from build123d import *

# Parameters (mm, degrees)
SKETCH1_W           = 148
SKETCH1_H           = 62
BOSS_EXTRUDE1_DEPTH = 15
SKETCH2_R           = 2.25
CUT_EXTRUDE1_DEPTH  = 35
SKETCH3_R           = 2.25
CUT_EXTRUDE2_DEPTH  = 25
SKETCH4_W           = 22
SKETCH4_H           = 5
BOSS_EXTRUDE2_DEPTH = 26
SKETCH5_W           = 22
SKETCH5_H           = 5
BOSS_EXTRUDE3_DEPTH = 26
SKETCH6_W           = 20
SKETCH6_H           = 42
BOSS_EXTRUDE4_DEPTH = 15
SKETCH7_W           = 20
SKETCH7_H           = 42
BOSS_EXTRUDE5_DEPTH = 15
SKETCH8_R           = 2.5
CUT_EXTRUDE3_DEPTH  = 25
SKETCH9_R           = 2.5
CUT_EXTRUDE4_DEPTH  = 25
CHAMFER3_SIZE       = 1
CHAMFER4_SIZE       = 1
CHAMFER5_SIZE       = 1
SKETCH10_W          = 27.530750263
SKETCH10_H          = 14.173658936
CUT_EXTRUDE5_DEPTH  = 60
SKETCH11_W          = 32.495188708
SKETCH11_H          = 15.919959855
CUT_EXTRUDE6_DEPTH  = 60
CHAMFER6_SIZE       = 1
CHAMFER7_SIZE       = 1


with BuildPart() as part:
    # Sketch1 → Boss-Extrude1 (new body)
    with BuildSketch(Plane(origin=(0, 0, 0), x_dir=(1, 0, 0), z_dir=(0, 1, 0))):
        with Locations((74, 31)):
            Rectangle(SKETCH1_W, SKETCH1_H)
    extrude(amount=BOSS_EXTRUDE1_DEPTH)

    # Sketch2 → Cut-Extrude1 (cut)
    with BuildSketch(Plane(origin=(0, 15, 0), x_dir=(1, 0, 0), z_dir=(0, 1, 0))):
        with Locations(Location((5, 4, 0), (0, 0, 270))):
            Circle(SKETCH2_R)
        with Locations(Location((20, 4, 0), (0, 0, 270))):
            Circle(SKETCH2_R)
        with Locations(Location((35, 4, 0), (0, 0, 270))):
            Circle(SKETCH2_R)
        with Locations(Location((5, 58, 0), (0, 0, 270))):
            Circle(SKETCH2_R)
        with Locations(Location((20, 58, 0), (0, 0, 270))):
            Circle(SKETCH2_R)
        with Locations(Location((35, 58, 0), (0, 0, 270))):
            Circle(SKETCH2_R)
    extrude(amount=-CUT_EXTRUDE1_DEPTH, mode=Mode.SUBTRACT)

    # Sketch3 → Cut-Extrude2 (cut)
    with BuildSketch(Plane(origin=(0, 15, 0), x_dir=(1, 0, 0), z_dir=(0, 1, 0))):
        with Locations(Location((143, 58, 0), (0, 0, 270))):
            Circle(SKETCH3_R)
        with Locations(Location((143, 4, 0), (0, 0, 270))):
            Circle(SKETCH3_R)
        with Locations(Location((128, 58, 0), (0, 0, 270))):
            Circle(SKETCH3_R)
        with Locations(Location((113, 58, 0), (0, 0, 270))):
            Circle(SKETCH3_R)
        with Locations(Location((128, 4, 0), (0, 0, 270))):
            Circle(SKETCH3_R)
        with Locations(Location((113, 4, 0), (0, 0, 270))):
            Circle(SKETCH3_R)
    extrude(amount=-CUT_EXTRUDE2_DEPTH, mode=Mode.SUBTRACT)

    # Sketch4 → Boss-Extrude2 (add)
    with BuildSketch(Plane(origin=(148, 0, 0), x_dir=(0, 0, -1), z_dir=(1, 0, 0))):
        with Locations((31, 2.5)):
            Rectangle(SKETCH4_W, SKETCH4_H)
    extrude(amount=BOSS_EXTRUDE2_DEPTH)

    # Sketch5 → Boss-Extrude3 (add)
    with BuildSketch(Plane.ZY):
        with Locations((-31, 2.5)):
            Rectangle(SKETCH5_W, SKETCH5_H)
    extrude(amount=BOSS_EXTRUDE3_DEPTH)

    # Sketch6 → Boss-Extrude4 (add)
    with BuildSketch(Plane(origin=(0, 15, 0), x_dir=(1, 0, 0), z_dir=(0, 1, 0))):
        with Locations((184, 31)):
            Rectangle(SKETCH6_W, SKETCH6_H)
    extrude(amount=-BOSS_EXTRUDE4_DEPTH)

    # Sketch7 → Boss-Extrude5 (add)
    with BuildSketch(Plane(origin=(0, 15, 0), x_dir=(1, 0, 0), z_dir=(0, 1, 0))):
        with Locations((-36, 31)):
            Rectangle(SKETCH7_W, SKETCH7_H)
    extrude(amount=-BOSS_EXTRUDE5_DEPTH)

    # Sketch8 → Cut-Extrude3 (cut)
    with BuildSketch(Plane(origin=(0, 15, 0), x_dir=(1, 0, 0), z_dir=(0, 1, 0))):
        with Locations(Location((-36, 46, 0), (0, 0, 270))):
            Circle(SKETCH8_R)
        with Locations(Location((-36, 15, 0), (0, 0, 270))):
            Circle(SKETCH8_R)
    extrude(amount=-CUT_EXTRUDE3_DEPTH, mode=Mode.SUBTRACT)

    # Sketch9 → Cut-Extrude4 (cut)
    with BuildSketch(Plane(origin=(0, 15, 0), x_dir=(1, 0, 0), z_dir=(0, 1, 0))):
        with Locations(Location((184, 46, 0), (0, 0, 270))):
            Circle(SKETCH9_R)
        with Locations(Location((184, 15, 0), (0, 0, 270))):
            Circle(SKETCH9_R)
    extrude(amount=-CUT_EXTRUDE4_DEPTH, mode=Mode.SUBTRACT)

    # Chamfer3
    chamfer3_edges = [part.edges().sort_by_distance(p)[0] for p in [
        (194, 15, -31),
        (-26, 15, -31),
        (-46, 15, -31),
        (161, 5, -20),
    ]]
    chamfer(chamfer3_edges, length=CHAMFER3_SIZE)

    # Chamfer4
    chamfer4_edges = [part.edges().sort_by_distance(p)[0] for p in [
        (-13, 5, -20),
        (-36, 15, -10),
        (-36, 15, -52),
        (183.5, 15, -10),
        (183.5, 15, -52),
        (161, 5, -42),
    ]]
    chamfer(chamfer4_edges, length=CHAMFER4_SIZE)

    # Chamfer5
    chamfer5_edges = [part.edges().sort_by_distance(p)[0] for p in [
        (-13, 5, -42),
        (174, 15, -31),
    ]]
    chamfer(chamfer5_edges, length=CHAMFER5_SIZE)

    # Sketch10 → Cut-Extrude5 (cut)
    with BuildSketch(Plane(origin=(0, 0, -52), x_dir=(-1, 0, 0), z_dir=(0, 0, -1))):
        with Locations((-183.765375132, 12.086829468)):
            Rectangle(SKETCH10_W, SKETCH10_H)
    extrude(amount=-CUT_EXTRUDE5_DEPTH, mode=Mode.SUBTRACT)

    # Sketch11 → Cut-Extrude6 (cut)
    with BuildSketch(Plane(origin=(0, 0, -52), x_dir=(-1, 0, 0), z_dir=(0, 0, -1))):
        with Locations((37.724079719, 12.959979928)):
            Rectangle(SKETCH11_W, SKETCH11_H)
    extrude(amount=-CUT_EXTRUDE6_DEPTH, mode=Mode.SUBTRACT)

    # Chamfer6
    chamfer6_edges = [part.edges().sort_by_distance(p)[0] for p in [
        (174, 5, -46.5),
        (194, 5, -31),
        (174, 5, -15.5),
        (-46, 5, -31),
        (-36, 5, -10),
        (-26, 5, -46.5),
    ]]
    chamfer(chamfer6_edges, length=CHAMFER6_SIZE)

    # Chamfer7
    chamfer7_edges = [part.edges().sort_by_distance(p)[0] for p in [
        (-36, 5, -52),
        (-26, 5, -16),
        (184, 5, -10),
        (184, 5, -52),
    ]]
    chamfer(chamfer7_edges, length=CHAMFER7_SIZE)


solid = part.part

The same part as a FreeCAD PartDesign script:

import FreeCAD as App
import Part
import Sketcher

V = App.Vector


def edges_at(feature, points):
    """Names of the edges that pass closest to the given points."""
    edges = feature.Shape.Edges
    near = lambda p: min(range(len(edges)), key=lambda i: edges[i].distToShape(Part.Vertex(*p))[0])
    return sorted({f"Edge{near(p) + 1}" for p in points})


def add_polygon(sketch, points):
    """Adds a closed chain of lines whose ends are joined by coincident constraints."""
    first, n = sketch.GeometryCount, len(points)
    for a, b in zip(points, points[1:] + points[:1]):
        sketch.addGeometry(Part.LineSegment(App.Vector(*a, 0), App.Vector(*b, 0)), False)
    for i in range(n):
        sketch.addConstraint(Sketcher.Constraint("Coincident", first + i, 2, first + (i + 1) % n, 1))

doc = App.newDocument("Part")
params = doc.addObject("Spreadsheet::Sheet", "Params")
for row, (alias, value) in enumerate([
    ("sketch1_width", "148 mm"),
    ("sketch1_height", "62 mm"),
    ("pad1_length", "15 mm"),
    ("sketch2_diameter", "4.5 mm"),
    ("pocket1_length", "35 mm"),
    ("sketch3_diameter", "4.5 mm"),
    ("pocket2_length", "25 mm"),
    ("sketch4_width", "5 mm"),
    ("sketch4_height", "22 mm"),
    ("pad2_length", "26 mm"),
    ("sketch5_width", "5 mm"),
    ("sketch5_height", "22 mm"),
    ("pad3_length", "26 mm"),
    ("sketch6_width", "20 mm"),
    ("sketch6_height", "42 mm"),
    ("pad4_length", "15 mm"),
    ("sketch7_width", "20 mm"),
    ("sketch7_height", "42 mm"),
    ("pad5_length", "15 mm"),
    ("sketch8_diameter", "5 mm"),
    ("pocket3_length", "25 mm"),
    ("sketch9_diameter", "5 mm"),
    ("pocket4_length", "25 mm"),
    ("chamfer_size", "1 mm"),
    ("chamfer2_size", "1 mm"),
    ("chamfer3_size", "1 mm"),
    ("pocket5_length", "60 mm"),
    ("pocket6_length", "60 mm"),
    ("chamfer4_size", "1 mm"),
    ("chamfer5_size", "1 mm"),
], start=1):
    params.set(f"A{row}", alias)
    params.set(f"B{row}", "=" + value)
    params.setAlias(f"B{row}", alias)

body = doc.addObject("PartDesign::Body", "Body")

# Sketch on XZ plane
sketch1 = doc.addObject("Sketcher::SketchObject", "Sketch")
body.addObject(sketch1)
sketch1.AttachmentSupport = (doc.XZ_Plane, [""])
sketch1.MapMode = "FlatFace"
add_polygon(sketch1, [(0, -62), (0, 0), (148, 0), (148, -62)])  # lines 0-3
sketch1.addConstraint([
    Sketcher.Constraint("Vertical", 0),
    Sketcher.Constraint("Horizontal", 1),
    Sketcher.Constraint("Vertical", 2),
    Sketcher.Constraint("Horizontal", 3),
    Sketcher.Constraint("Coincident", 0, 2, -1, 1),
    Sketcher.Constraint("DistanceX", 1, 1, 1, 2, 148.0),
    Sketcher.Constraint("DistanceY", 0, 1, 0, 2, 62.0),
])
sketch1.setExpression("Constraints[9]", "Params.sketch1_width")
sketch1.setExpression("Constraints[10]", "Params.sketch1_height")
pad1 = doc.addObject("PartDesign::Pad", "Pad")
body.addObject(pad1)
pad1.Profile = sketch1
pad1.setExpression("Length", "Params.pad1_length")
pad1.Reversed = True

# Sketch on XZ plane
sketch2 = doc.addObject("Sketcher::SketchObject", "Sketch001")
body.addObject(sketch2)
sketch2.AttachmentSupport = (doc.XZ_Plane, [""])
sketch2.MapMode = "FlatFace"
sketch2.AttachmentOffset = App.Placement(V(0, 0, -15), App.Rotation())
sketch2.addGeometry([
    Part.Circle(V(5, -4, 0), V(0, 0, 1), 2.2),  # 0
    Part.Circle(V(20, -4, 0), V(0, 0, 1), 2.2),  # 1
    Part.Circle(V(35, -4, 0), V(0, 0, 1), 2.2),  # 2
    Part.Circle(V(5, -58, 0), V(0, 0, 1), 2.2),  # 3
    Part.Circle(V(20, -58, 0), V(0, 0, 1), 2.2),  # 4
    Part.Circle(V(35, -58, 0), V(0, 0, 1), 2.2),  # 5
], False)
sketch2.addConstraint([
    Sketcher.Constraint("Equal", 0, 1),
    Sketcher.Constraint("Equal", 1, 2),
    Sketcher.Constraint("Equal", 2, 3),
    Sketcher.Constraint("Equal", 3, 4),
    Sketcher.Constraint("Equal", 4, 5),
    Sketcher.Constraint("Horizontal", 0, 3, 1, 3),
    Sketcher.Constraint("Horizontal", 1, 3, 2, 3),
    Sketcher.Constraint("Horizontal", 3, 3, 4, 3),
    Sketcher.Constraint("Horizontal", 4, 3, 5, 3),
    Sketcher.Constraint("Vertical", 0, 3, 3, 3),
    Sketcher.Constraint("Vertical", 1, 3, 4, 3),
    Sketcher.Constraint("Vertical", 2, 3, 5, 3),
    Sketcher.Constraint("Diameter", 0, 4.5),
    Sketcher.Constraint("DistanceX", -1, 1, 0, 3, 5.0),
    Sketcher.Constraint("DistanceY", 0, 3, -1, 1, 4.0),
    Sketcher.Constraint("DistanceX", -1, 1, 1, 3, 20.0),
    Sketcher.Constraint("DistanceX", -1, 1, 2, 3, 35.0),
    Sketcher.Constraint("DistanceY", 3, 3, -1, 1, 58.0),
])
sketch2.setExpression("Constraints[12]", "Params.sketch2_diameter")
pocket1 = doc.addObject("PartDesign::Pocket", "Pocket")
body.addObject(pocket1)
pocket1.Profile = sketch2
pocket1.setExpression("Length", "Params.pocket1_length")
pocket1.Reversed = True

# Sketch on XZ plane
sketch3 = doc.addObject("Sketcher::SketchObject", "Sketch002")
body.addObject(sketch3)
sketch3.AttachmentSupport = (doc.XZ_Plane, [""])
sketch3.MapMode = "FlatFace"
sketch3.AttachmentOffset = App.Placement(V(0, 0, -15), App.Rotation())
sketch3.addGeometry([
    Part.Circle(V(143, -58, 0), V(0, 0, 1), 2.2),  # 0
    Part.Circle(V(143, -4, 0), V(0, 0, 1), 2.2),  # 1
    Part.Circle(V(128, -58, 0), V(0, 0, 1), 2.2),  # 2
    Part.Circle(V(113, -58, 0), V(0, 0, 1), 2.2),  # 3
    Part.Circle(V(128, -4, 0), V(0, 0, 1), 2.2),  # 4
    Part.Circle(V(113, -4, 0), V(0, 0, 1), 2.2),  # 5
], False)
sketch3.addConstraint([
    Sketcher.Constraint("Equal", 0, 1),
    Sketcher.Constraint("Equal", 1, 2),
    Sketcher.Constraint("Equal", 2, 3),
    Sketcher.Constraint("Equal", 3, 4),
    Sketcher.Constraint("Equal", 4, 5),
    Sketcher.Constraint("Horizontal", 0, 3, 2, 3),
    Sketcher.Constraint("Horizontal", 2, 3, 3, 3),
    Sketcher.Constraint("Horizontal", 1, 3, 4, 3),
    Sketcher.Constraint("Horizontal", 4, 3, 5, 3),
    Sketcher.Constraint("Vertical", 0, 3, 1, 3),
    Sketcher.Constraint("Vertical", 2, 3, 4, 3),
    Sketcher.Constraint("Vertical", 3, 3, 5, 3),
    Sketcher.Constraint("Diameter", 0, 4.5),
    Sketcher.Constraint("DistanceX", -1, 1, 0, 3, 143.0),
    Sketcher.Constraint("DistanceY", 0, 3, -1, 1, 58.0),
    Sketcher.Constraint("DistanceY", 1, 3, -1, 1, 4.0),
    Sketcher.Constraint("DistanceX", -1, 1, 2, 3, 128.0),
    Sketcher.Constraint("DistanceX", -1, 1, 3, 3, 113.0),
])
sketch3.setExpression("Constraints[12]", "Params.sketch3_diameter")
pocket2 = doc.addObject("PartDesign::Pocket", "Pocket001")
body.addObject(pocket2)
pocket2.Profile = sketch3
pocket2.setExpression("Length", "Params.pocket2_length")
pocket2.Reversed = True

# Sketch on YZ plane
sketch4 = doc.addObject("Sketcher::SketchObject", "Sketch003")
body.addObject(sketch4)
sketch4.AttachmentSupport = (doc.YZ_Plane, [""])
sketch4.MapMode = "FlatFace"
sketch4.AttachmentOffset = App.Placement(V(0, 0, 148), App.Rotation())
add_polygon(sketch4, [(5, -20), (0, -20), (0, -42), (5, -42)])  # lines 0-3
sketch4.addConstraint([
    Sketcher.Constraint("Horizontal", 0),
    Sketcher.Constraint("Vertical", 1),
    Sketcher.Constraint("Horizontal", 2),
    Sketcher.Constraint("Vertical", 3),
    Sketcher.Constraint("PointOnObject", 0, 2, -2),
    Sketcher.Constraint("DistanceX", 0, 2, 0, 1, 5.0),
    Sketcher.Constraint("DistanceY", 1, 2, 1, 1, 22.0),
    Sketcher.Constraint("DistanceY", 0, 2, -1, 1, 20.0),
])
sketch4.setExpression("Constraints[9]", "Params.sketch4_width")
sketch4.setExpression("Constraints[10]", "Params.sketch4_height")
pad2 = doc.addObject("PartDesign::Pad", "Pad001")
body.addObject(pad2)
pad2.Profile = sketch4
pad2.setExpression("Length", "Params.pad2_length")

# Sketch on YZ plane
sketch5 = doc.addObject("Sketcher::SketchObject", "Sketch004")
body.addObject(sketch5)
sketch5.AttachmentSupport = (doc.YZ_Plane, [""])
sketch5.MapMode = "FlatFace"
add_polygon(sketch5, [(5, -42), (0, -42), (0, -20), (5, -20)])  # lines 0-3
sketch5.addConstraint([
    Sketcher.Constraint("Horizontal", 0),
    Sketcher.Constraint("Vertical", 1),
    Sketcher.Constraint("Horizontal", 2),
    Sketcher.Constraint("Vertical", 3),
    Sketcher.Constraint("PointOnObject", 0, 2, -2),
    Sketcher.Constraint("DistanceX", 0, 2, 0, 1, 5.0),
    Sketcher.Constraint("DistanceY", 1, 1, 1, 2, 22.0),
    Sketcher.Constraint("DistanceY", 0, 2, -1, 1, 42.0),
])
sketch5.setExpression("Constraints[9]", "Params.sketch5_width")
sketch5.setExpression("Constraints[10]", "Params.sketch5_height")
pad3 = doc.addObject("PartDesign::Pad", "Pad002")
body.addObject(pad3)
pad3.Profile = sketch5
pad3.setExpression("Length", "Params.pad3_length")
pad3.Reversed = True

# Sketch on XZ plane
sketch6 = doc.addObject("Sketcher::SketchObject", "Sketch005")
body.addObject(sketch6)
sketch6.AttachmentSupport = (doc.XZ_Plane, [""])
sketch6.MapMode = "FlatFace"
sketch6.AttachmentOffset = App.Placement(V(0, 0, -15), App.Rotation())
add_polygon(sketch6, [(174, -52), (174, -10), (194, -10), (194, -52)])  # lines 0-3
sketch6.addConstraint([
    Sketcher.Constraint("Vertical", 0),
    Sketcher.Constraint("Horizontal", 1),
    Sketcher.Constraint("Vertical", 2),
    Sketcher.Constraint("Horizontal", 3),
    Sketcher.Constraint("DistanceX", 1, 1, 1, 2, 20.0),
    Sketcher.Constraint("DistanceY", 0, 1, 0, 2, 42.0),
    Sketcher.Constraint("DistanceX", -1, 1, 0, 2, 174.0),
    Sketcher.Constraint("DistanceY", 0, 2, -1, 1, 10.0),
])
sketch6.setExpression("Constraints[8]", "Params.sketch6_width")
sketch6.setExpression("Constraints[9]", "Params.sketch6_height")
pad4 = doc.addObject("PartDesign::Pad", "Pad003")
body.addObject(pad4)
pad4.Profile = sketch6
pad4.setExpression("Length", "Params.pad4_length")

# Sketch on XZ plane
sketch7 = doc.addObject("Sketcher::SketchObject", "Sketch006")
body.addObject(sketch7)
sketch7.AttachmentSupport = (doc.XZ_Plane, [""])
sketch7.MapMode = "FlatFace"
sketch7.AttachmentOffset = App.Placement(V(0, 0, -15), App.Rotation())
add_polygon(sketch7, [(-46, -52), (-46, -10), (-26, -10), (-26, -52)])  # lines 0-3
sketch7.addConstraint([
    Sketcher.Constraint("Vertical", 0),
    Sketcher.Constraint("Horizontal", 1),
    Sketcher.Constraint("Vertical", 2),
    Sketcher.Constraint("Horizontal", 3),
    Sketcher.Constraint("DistanceX", 1, 1, 1, 2, 20.0),
    Sketcher.Constraint("DistanceY", 0, 1, 0, 2, 42.0),
    Sketcher.Constraint("DistanceX", 0, 2, -1, 1, 46.0),
    Sketcher.Constraint("DistanceY", 0, 2, -1, 1, 10.0),
])
sketch7.setExpression("Constraints[8]", "Params.sketch7_width")
sketch7.setExpression("Constraints[9]", "Params.sketch7_height")
pad5 = doc.addObject("PartDesign::Pad", "Pad004")
body.addObject(pad5)
pad5.Profile = sketch7
pad5.setExpression("Length", "Params.pad5_length")

# Sketch on XZ plane
sketch8 = doc.addObject("Sketcher::SketchObject", "Sketch007")
body.addObject(sketch8)
sketch8.AttachmentSupport = (doc.XZ_Plane, [""])
sketch8.MapMode = "FlatFace"
sketch8.AttachmentOffset = App.Placement(V(0, 0, -15), App.Rotation())
sketch8.addGeometry([
    Part.Circle(V(-36, -46, 0), V(0, 0, 1), 2.5),
    Part.Circle(V(-36, -15, 0), V(0, 0, 1), 2.5),
], False)
sketch8.addConstraint([
    Sketcher.Constraint("Equal", 0, 1),
    Sketcher.Constraint("Vertical", 0, 3, 1, 3),
    Sketcher.Constraint("Diameter", 0, 5.0),
    Sketcher.Constraint("DistanceX", 0, 3, -1, 1, 36.0),
    Sketcher.Constraint("DistanceY", 0, 3, -1, 1, 46.0),
    Sketcher.Constraint("DistanceY", 1, 3, -1, 1, 15.0),
])
sketch8.setExpression("Constraints[2]", "Params.sketch8_diameter")
pocket3 = doc.addObject("PartDesign::Pocket", "Pocket002")
body.addObject(pocket3)
pocket3.Profile = sketch8
pocket3.setExpression("Length", "Params.pocket3_length")
pocket3.Reversed = True

# Sketch on XZ plane
sketch9 = doc.addObject("Sketcher::SketchObject", "Sketch008")
body.addObject(sketch9)
sketch9.AttachmentSupport = (doc.XZ_Plane, [""])
sketch9.MapMode = "FlatFace"
sketch9.AttachmentOffset = App.Placement(V(0, 0, -15), App.Rotation())
sketch9.addGeometry([
    Part.Circle(V(184, -46, 0), V(0, 0, 1), 2.5),
    Part.Circle(V(184, -15, 0), V(0, 0, 1), 2.5),
], False)
sketch9.addConstraint([
    Sketcher.Constraint("Equal", 0, 1),
    Sketcher.Constraint("Vertical", 0, 3, 1, 3),
    Sketcher.Constraint("Diameter", 0, 5.0),
    Sketcher.Constraint("DistanceX", -1, 1, 0, 3, 184.0),
    Sketcher.Constraint("DistanceY", 0, 3, -1, 1, 46.0),
    Sketcher.Constraint("DistanceY", 1, 3, -1, 1, 15.0),
])
sketch9.setExpression("Constraints[2]", "Params.sketch9_diameter")
pocket4 = doc.addObject("PartDesign::Pocket", "Pocket003")
body.addObject(pocket4)
pocket4.Profile = sketch9
pocket4.setExpression("Length", "Params.pocket4_length")
pocket4.Reversed = True
doc.recompute()

chamfer = doc.addObject("PartDesign::Chamfer", "Chamfer")
body.addObject(chamfer)
chamfer.Base = (pocket4, edges_at(pocket4, [
    (194, 15, -31),
    (-26, 15, -31),
    (-46, 15, -31),
    (161, 5, -20),
]))
chamfer.setExpression("Size", "Params.chamfer_size")
doc.recompute()

chamfer2 = doc.addObject("PartDesign::Chamfer", "Chamfer001")
body.addObject(chamfer2)
chamfer2.Base = (chamfer, edges_at(chamfer, [
    (-13, 5, -20),
    (-36, 15, -10),
    (-36, 15, -52),
    (183.5, 15, -10),
    (183.5, 15, -52),
    (161, 5, -42),
]))
chamfer2.setExpression("Size", "Params.chamfer2_size")
doc.recompute()

chamfer3 = doc.addObject("PartDesign::Chamfer", "Chamfer002")
body.addObject(chamfer3)
chamfer3.Base = (chamfer2, edges_at(chamfer2, [(-13, 5, -42), (174, 15, -31)]))
chamfer3.setExpression("Size", "Params.chamfer3_size")

# Sketch on XY plane
sketch10 = doc.addObject("Sketcher::SketchObject", "Sketch009")
body.addObject(sketch10)
sketch10.AttachmentSupport = (doc.XY_Plane, [""])
sketch10.MapMode = "FlatFace"
sketch10.AttachmentOffset = App.Placement(V(0, 0, -52), App.Rotation())
add_polygon(sketch10, [(198, 19), (198, 5), (170, 5), (170, 19)])  # lines 0-3
sketch10.addConstraint([
    Sketcher.Constraint("Vertical", 0),
    Sketcher.Constraint("Horizontal", 1),
    Sketcher.Constraint("Vertical", 2),
    Sketcher.Constraint("Horizontal", 3),
    Sketcher.Constraint("DistanceY", -1, 1, 0, 2, 5.0),
    Sketcher.Constraint("DistanceX", -1, 1, 1, 2, 170.0),
    Sketcher.Constraint("DistanceX", 1, 2, 1, 1, 27.53075),
    Sketcher.Constraint("DistanceY", 0, 2, 0, 1, 14.173659),
])
pocket5 = doc.addObject("PartDesign::Pocket", "Pocket004")
body.addObject(pocket5)
pocket5.Profile = sketch10
pocket5.setExpression("Length", "Params.pocket5_length")
pocket5.Reversed = True

# Sketch on XY plane
sketch11 = doc.addObject("Sketcher::SketchObject", "Sketch010")
body.addObject(sketch11)
sketch11.AttachmentSupport = (doc.XY_Plane, [""])
sketch11.MapMode = "FlatFace"
sketch11.AttachmentOffset = App.Placement(V(0, 0, -52), App.Rotation())
add_polygon(sketch11, [(-21, 21), (-21, 5), (-54, 5), (-54, 21)])  # lines 0-3
sketch11.addConstraint([
    Sketcher.Constraint("Vertical", 0),
    Sketcher.Constraint("Horizontal", 1),
    Sketcher.Constraint("Vertical", 2),
    Sketcher.Constraint("Horizontal", 3),
    Sketcher.Constraint("DistanceY", -1, 1, 0, 2, 5.0),
    Sketcher.Constraint("DistanceX", 1, 2, 1, 1, 32.495189),
    Sketcher.Constraint("DistanceY", 0, 2, 0, 1, 15.91996),
    Sketcher.Constraint("DistanceX", 0, 2, -1, 1, 21.476485),
])
pocket6 = doc.addObject("PartDesign::Pocket", "Pocket005")
body.addObject(pocket6)
pocket6.Profile = sketch11
pocket6.setExpression("Length", "Params.pocket6_length")
pocket6.Reversed = True
doc.recompute()

chamfer4 = doc.addObject("PartDesign::Chamfer", "Chamfer003")
body.addObject(chamfer4)
chamfer4.Base = (pocket6, edges_at(pocket6, [
    (174, 5, -46.5),
    (194, 5, -31),
    (174, 5, -15.5),
    (-46, 5, -31),
    (-36, 5, -10),
    (-26, 5, -46.5),
]))
chamfer4.setExpression("Size", "Params.chamfer4_size")
doc.recompute()

chamfer5 = doc.addObject("PartDesign::Chamfer", "Chamfer004")
body.addObject(chamfer5)
chamfer5.Base = (chamfer4, edges_at(chamfer4, [
    (-36, 5, -52),
    (-26, 5, -16),
    (184, 5, -10),
    (184, 5, -52),
]))
chamfer5.setExpression("Size", "Params.chamfer5_size")

doc.recompute()
